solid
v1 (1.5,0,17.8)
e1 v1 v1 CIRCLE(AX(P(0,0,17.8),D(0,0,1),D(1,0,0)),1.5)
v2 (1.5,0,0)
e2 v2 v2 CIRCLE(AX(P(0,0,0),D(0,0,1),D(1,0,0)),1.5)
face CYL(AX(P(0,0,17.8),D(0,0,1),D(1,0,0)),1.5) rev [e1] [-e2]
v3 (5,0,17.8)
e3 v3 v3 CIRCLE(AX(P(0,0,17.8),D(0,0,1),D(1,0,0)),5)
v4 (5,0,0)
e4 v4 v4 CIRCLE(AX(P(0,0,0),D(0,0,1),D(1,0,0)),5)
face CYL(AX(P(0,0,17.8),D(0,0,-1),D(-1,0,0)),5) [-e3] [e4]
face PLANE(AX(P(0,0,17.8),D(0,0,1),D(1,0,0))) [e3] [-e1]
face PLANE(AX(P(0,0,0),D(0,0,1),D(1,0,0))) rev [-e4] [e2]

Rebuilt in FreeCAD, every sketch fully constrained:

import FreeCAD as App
import Part
import Sketcher
from FreeCAD import Vector
Q = App.Units.Quantity

doc = App.newDocument("Part")
body = doc.addObject("PartDesign::Body", "Body")

sketch1 = doc.addObject("Sketcher::SketchObject", "Sketch")
body.addObject(sketch1)
sketch1.AttachmentSupport = (doc.XY_Plane, [""])
sketch1.MapMode = "FlatFace"
sketch1.addGeometry(Part.Circle(Vector(0, 0, 0), Vector(0, 0, 1), 5), False)
sketch1.addConstraint([
    Sketcher.Constraint("Coincident", 0, 3, -1, 1),
    Sketcher.Constraint("Diameter", 0, Q("10 mm")),
])
pad1 = doc.addObject("PartDesign::Pad", "Pad")
body.addObject(pad1)
pad1.Profile = sketch1
pad1.Length = 17.8

sketch2 = doc.addObject("Sketcher::SketchObject", "Sketch001")
body.addObject(sketch2)
sketch2.AttachmentSupport = (doc.XY_Plane, [""])
sketch2.MapMode = "FlatFace"
sketch2.AttachmentOffset = App.Placement(Vector(0, 0, 17.8), App.Rotation())
sketch2.addGeometry(Part.Circle(Vector(0, 0, 0), Vector(0, 0, 1), 1.5), False)
sketch2.addConstraint([
    Sketcher.Constraint("Coincident", 0, 3, -1, 1),
    Sketcher.Constraint("Diameter", 0, Q("3 mm")),
])
doc.recompute()
hole = doc.addObject("PartDesign::Hole", "Hole")
body.addObject(hole)
hole.Profile = sketch2
hole.ThreadType = "None"
hole.Diameter = 3
hole.DepthType = "Dimension"
hole.Depth = 17.8
hole.DrillPoint = "Flat"

doc.recompute()
